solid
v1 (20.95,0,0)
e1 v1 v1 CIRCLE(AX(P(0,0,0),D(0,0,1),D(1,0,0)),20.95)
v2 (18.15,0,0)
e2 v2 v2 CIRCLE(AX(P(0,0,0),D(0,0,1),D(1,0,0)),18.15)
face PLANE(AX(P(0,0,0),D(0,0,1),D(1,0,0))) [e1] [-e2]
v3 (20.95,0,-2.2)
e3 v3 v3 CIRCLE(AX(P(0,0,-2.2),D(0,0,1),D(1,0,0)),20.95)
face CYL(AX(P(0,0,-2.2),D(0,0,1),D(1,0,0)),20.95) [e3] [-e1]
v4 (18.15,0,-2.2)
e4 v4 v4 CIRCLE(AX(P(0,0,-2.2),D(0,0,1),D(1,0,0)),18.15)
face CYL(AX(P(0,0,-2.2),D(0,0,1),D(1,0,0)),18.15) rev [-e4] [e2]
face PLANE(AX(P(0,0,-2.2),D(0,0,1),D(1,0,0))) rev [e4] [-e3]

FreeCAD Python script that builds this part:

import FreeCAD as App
import Part
import Sketcher
Q = App.Units.Quantity

doc = App.newDocument("Part")
body = doc.addObject("PartDesign::Body", "Body")

# Sketch on XY plane
sketch1 = doc.addObject("Sketcher::SketchObject", "Sketch")
body.addObject(sketch1)
sketch1.AttachmentSupport = (doc.XY_Plane, [""])
sketch1.MapMode = "FlatFace"
sketch1.addGeometry([
    Part.Circle(App.Vector(0, 0, 0), App.Vector(0, 0, 1), 21),
    Part.Circle(App.Vector(0, 0, 0), App.Vector(0, 0, 1), 18),
], False)
sketch1.addConstraint([
    Sketcher.Constraint("Coincident", 0, 3, -1, 1),
    Sketcher.Constraint("Coincident", 1, 3, -1, 1),
    Sketcher.Constraint("Diameter", 0, Q("41.9 mm")),
    Sketcher.Constraint("Diameter", 1, Q("36.3 mm")),
])
pad1 = doc.addObject("PartDesign::Pad", "Pad")
body.addObject(pad1)
pad1.Profile = sketch1
pad1.Length = 2.2
pad1.Reversed = True

doc.recompute()
